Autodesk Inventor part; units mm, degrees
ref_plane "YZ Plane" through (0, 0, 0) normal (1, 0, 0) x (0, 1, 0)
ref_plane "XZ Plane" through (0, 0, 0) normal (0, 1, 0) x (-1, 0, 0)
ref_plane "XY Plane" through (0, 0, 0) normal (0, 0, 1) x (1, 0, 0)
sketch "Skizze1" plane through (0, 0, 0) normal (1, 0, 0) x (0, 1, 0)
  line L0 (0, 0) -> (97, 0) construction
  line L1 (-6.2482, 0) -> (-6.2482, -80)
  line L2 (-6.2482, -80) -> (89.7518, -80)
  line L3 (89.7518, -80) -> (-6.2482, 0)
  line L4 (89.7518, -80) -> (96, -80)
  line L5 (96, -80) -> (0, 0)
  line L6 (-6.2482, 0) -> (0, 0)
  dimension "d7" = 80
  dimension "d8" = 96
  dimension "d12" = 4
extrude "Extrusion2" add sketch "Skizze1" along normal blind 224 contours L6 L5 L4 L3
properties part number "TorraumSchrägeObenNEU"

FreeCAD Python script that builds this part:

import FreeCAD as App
import Part
import Sketcher
from FreeCAD import Vector
Q = App.Units.Quantity


def add_polygon(sketch, points):
    """Adds a closed chain of lines whose ends are joined by coincident constraints."""
    first, n = sketch.GeometryCount, len(points)
    for a, b in zip(points, points[1:] + points[:1]):
        sketch.addGeometry(Part.LineSegment(App.Vector(*a, 0), App.Vector(*b, 0)), False)
    for i in range(n):
        sketch.addConstraint(Sketcher.Constraint("Coincident", first + i, 2, first + (i + 1) % n, 1))

doc = App.newDocument("Part")
params = doc.addObject("Spreadsheet::Sheet", "Params")
for row, (alias, value) in enumerate([
    ("sketch1_width", "0.246 in"),
    ("pad1_length", "8.8188976 in"),
], start=1):
    params.set(f"A{row}", alias)
    params.set(f"B{row}", "=" + value)
    params.setAlias(f"B{row}", alias)

body = doc.addObject("PartDesign::Body", "Body")

sketch1 = body.newObject("Sketcher::SketchObject", "Sketch")
sketch1.AttachmentSupport = (doc.getObject("YZ_Plane"), [""])
sketch1.MapMode = "FlatFace"
add_polygon(sketch1, [(0, 0), (-6.2482, 0), (89.7518, -80), (96, -80)])
sketch1.addConstraint(Sketcher.Constraint("Horizontal", 0))
sketch1.addConstraint(Sketcher.Constraint("Horizontal", 2))
sketch1.addConstraint(Sketcher.Constraint("Coincident", 3, 2, -1, 1))
sketch1.addConstraint(Sketcher.Constraint("Parallel", 1, 3))
sketch1.addConstraint(Sketcher.Constraint("DistanceY", 1, 2, -1, 1, Q("3.1496 in")))
sketch1.addConstraint(Sketcher.Constraint("DistanceX", 0, 2, 0, 1, Q("0.246 in")))
sketch1.addConstraint(Sketcher.Constraint("DistanceX", -1, 1, 2, 2, 96.0))
sketch1.setExpression("Constraints[9]", "Params.sketch1_width")
pad1 = body.newObject("PartDesign::Pad", "Pad")
pad1.Profile = sketch1
pad1.setExpression("Length", "Params.pad1_length")

doc.recompute()
